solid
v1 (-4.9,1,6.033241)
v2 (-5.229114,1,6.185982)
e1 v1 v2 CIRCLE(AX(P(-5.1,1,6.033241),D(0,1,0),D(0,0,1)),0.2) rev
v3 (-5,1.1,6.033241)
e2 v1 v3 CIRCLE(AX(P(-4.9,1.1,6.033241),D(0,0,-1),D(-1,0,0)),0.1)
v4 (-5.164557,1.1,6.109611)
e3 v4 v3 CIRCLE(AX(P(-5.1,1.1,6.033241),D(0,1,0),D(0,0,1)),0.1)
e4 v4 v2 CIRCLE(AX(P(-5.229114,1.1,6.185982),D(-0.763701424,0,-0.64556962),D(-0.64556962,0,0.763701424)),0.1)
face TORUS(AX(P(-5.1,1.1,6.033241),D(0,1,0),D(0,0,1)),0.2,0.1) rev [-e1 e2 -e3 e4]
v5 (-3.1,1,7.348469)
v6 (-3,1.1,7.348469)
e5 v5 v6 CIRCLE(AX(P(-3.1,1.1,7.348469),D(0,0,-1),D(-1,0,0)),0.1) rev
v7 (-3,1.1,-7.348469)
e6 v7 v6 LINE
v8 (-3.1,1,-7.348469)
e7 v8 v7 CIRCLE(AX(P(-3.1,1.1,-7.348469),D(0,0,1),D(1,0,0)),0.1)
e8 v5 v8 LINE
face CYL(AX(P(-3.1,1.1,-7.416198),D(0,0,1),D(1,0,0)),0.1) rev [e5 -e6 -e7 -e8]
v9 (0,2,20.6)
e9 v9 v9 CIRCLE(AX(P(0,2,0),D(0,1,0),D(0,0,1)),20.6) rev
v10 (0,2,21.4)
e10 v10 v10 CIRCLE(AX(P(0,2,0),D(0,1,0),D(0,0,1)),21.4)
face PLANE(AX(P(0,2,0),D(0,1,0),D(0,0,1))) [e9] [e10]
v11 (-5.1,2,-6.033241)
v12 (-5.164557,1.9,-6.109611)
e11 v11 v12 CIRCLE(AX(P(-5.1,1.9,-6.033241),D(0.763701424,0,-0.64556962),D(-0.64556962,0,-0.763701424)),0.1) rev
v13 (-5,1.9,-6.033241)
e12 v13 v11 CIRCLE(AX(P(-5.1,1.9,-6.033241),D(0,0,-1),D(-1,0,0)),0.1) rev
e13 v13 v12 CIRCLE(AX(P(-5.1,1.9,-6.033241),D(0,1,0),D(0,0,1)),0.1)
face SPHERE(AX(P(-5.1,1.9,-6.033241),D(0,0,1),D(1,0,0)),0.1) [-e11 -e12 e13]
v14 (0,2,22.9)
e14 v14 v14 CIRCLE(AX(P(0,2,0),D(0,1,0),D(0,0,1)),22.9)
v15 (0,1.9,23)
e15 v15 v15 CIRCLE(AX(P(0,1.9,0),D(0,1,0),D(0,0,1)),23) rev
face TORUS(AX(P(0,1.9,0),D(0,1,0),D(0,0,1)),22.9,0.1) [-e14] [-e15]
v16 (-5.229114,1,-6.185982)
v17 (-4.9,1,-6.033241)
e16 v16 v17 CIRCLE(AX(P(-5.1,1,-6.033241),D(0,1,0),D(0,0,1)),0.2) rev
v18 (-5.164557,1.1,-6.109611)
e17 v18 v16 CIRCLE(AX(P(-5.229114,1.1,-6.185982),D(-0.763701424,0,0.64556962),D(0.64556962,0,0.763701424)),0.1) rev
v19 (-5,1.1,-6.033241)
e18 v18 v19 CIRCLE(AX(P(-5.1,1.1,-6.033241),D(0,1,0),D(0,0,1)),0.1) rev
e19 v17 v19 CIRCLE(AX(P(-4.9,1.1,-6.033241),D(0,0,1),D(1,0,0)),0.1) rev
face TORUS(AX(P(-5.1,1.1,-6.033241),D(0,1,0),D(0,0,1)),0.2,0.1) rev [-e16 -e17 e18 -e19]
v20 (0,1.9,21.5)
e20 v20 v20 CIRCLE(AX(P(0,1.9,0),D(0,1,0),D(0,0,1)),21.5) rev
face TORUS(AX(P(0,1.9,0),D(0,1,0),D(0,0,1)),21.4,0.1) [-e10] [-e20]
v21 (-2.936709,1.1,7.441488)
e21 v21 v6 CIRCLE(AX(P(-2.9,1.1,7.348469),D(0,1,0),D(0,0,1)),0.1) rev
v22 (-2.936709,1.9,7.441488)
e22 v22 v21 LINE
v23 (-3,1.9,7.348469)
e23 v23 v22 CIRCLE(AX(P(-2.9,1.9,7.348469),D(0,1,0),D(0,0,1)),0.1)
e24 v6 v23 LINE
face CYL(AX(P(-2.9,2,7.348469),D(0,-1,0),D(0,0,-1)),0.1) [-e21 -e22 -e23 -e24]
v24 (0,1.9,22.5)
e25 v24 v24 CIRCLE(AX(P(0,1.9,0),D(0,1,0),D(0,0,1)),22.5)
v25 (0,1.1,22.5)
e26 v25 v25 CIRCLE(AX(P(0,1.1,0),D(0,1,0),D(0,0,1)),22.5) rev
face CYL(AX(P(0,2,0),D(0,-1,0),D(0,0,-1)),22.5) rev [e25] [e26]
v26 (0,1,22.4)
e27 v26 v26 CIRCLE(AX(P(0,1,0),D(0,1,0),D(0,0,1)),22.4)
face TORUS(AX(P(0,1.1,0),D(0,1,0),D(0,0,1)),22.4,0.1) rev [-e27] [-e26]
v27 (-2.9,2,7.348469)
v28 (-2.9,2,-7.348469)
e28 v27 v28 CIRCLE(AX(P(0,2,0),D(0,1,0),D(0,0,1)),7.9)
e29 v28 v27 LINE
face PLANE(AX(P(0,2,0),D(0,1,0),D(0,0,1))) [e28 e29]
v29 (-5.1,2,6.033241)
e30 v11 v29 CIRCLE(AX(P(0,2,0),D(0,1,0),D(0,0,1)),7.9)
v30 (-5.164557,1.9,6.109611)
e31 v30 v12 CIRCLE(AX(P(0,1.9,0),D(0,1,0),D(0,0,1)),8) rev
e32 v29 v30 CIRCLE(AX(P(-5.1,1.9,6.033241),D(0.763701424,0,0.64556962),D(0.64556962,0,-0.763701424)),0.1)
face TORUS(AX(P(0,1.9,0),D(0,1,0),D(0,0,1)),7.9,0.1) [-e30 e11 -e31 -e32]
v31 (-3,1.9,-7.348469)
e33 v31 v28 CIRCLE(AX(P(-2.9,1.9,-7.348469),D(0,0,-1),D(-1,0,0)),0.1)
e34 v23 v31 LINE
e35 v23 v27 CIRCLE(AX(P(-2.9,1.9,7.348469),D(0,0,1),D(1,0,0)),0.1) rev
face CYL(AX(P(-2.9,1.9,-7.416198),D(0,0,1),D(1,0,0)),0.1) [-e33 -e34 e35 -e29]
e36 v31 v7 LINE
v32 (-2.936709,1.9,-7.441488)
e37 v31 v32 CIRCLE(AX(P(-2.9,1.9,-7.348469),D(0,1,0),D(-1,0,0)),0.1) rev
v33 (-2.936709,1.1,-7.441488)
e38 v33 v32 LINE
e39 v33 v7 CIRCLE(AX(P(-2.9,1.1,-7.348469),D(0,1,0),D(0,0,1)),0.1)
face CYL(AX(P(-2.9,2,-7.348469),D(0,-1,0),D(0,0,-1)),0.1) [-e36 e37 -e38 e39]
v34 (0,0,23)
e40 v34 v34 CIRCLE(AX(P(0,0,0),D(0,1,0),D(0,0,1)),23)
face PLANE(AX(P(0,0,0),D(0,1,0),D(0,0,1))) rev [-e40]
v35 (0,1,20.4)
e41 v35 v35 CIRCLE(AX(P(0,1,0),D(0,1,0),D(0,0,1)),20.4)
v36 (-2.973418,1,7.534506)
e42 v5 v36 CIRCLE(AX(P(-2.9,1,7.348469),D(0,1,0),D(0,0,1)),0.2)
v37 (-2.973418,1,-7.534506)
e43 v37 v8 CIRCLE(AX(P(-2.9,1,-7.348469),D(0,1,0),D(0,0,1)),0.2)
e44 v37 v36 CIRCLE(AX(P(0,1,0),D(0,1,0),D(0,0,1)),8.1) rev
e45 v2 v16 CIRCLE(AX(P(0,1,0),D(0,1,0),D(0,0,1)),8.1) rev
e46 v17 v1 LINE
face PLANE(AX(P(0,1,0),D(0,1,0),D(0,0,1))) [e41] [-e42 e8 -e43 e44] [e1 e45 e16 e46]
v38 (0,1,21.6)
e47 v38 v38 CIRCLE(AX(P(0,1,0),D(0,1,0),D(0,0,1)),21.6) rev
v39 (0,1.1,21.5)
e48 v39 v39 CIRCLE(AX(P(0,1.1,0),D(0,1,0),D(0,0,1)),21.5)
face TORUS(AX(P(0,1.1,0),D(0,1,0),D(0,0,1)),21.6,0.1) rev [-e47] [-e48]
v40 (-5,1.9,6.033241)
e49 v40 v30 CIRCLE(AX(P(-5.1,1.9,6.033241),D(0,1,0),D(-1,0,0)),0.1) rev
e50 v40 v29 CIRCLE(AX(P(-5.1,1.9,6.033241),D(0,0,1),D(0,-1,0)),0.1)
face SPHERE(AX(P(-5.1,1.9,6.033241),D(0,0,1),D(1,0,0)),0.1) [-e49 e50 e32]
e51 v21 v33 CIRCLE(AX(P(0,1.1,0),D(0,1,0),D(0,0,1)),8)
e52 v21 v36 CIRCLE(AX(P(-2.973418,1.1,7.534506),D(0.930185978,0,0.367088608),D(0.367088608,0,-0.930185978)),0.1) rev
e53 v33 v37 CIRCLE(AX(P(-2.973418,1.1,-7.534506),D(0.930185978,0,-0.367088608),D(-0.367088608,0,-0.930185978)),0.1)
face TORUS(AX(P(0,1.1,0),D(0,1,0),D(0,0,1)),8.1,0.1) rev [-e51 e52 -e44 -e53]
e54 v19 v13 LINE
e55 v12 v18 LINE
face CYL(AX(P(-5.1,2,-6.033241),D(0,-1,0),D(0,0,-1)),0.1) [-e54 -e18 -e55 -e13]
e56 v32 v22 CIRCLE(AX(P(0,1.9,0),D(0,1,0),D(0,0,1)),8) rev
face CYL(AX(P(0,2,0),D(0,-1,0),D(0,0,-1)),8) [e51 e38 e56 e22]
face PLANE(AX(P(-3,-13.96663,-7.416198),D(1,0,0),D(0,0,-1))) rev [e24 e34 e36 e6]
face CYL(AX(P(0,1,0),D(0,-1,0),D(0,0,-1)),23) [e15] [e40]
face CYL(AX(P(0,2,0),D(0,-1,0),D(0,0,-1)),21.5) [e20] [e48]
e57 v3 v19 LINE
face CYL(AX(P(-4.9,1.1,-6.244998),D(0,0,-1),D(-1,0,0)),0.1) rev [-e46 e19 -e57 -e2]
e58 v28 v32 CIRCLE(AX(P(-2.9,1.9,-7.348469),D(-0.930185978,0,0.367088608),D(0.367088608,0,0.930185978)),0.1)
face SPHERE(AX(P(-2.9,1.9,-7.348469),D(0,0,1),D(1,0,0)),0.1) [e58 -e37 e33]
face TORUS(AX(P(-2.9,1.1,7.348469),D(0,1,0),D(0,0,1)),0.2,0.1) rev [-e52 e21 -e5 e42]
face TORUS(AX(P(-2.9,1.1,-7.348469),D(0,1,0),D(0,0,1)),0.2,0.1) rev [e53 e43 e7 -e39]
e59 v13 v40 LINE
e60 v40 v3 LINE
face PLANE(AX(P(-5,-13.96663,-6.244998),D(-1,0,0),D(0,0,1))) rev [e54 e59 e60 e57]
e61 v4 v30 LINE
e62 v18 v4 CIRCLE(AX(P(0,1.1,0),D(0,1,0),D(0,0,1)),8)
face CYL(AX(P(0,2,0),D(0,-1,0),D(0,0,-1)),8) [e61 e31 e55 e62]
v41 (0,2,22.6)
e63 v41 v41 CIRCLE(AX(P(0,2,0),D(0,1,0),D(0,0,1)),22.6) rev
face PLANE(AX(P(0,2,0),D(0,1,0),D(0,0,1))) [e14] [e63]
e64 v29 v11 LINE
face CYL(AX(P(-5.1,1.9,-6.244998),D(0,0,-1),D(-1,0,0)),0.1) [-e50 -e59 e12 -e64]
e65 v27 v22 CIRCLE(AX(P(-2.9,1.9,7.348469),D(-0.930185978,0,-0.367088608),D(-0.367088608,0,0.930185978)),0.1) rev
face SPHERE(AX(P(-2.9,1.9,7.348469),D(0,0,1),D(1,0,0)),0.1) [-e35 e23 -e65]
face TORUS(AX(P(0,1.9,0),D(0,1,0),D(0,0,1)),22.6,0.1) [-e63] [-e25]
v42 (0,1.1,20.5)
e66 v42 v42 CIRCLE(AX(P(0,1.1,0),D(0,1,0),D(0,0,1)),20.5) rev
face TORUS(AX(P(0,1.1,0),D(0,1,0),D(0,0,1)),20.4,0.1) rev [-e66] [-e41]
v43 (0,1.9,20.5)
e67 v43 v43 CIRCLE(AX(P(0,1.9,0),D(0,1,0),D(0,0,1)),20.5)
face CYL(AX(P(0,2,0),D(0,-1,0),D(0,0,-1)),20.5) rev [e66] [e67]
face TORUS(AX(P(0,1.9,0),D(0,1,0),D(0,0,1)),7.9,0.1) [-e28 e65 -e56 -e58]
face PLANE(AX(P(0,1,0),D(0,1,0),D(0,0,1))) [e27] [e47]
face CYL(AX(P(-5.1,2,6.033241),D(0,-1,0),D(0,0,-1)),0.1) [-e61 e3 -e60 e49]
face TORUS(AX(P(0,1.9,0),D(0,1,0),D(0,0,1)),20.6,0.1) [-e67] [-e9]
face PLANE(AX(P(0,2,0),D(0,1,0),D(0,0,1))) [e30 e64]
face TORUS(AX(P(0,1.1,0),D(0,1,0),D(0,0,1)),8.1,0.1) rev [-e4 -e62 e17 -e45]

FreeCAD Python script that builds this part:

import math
import FreeCAD as App
import Part
import Sketcher

V = App.Vector


def edges_at(feature, points):
    """Names of the edges that pass closest to the given points."""
    edges = feature.Shape.Edges
    near = lambda p: min(range(len(edges)), key=lambda i: edges[i].distToShape(Part.Vertex(*p))[0])
    return sorted({f"Edge{near(p) + 1}" for p in points})

doc = App.newDocument("Part")
body = doc.addObject("PartDesign::Body", "Body")

# Sketch on XZ plane
sketch1 = body.newObject("Sketcher::SketchObject", "Sketch")
sketch1.AttachmentSupport = (doc.getObject("XZ_Plane"), [""])
sketch1.MapMode = "FlatFace"
sketch1.addGeometry(Part.Circle(V(0, 0, 0), V(0, 0, 1), 23), False)
sketch1.addConstraint([
    Sketcher.Constraint("Coincident", 0, 3, -1, 1),
    Sketcher.Constraint("Diameter", 0, 46.0),
])
pad1 = body.newObject("PartDesign::Pad", "Pad")
pad1.Profile = sketch1
pad1.Length = 1
pad1.Reversed = True

# Sketch on XZ plane
sketch2 = body.newObject("Sketcher::SketchObject", "Sketch001")
sketch2.AttachmentSupport = (doc.getObject("XZ_Plane"), [""])
sketch2.MapMode = "FlatFace"
sketch2.AttachmentOffset = App.Placement(V(0, 0, -1), App.Rotation())
sketch2.addGeometry([
    Part.Circle(V(0, 0, 0), V(0, 0, 1), 23),
    Part.Circle(V(0, 0, 0), V(0, 0, 1), 22),
], False)
sketch2.addConstraint([
    Sketcher.Constraint("Coincident", 0, 3, -1, 1),
    Sketcher.Constraint("Coincident", 1, 3, -1, 1),
    Sketcher.Constraint("Diameter", 0, 46.0),
    Sketcher.Constraint("Diameter", 1, 45.0),
])
pad2 = body.newObject("PartDesign::Pad", "Pad001")
pad2.Profile = sketch2
pad2.Length = 1
pad2.Reversed = True

# Sketch on XZ plane
sketch3 = body.newObject("Sketcher::SketchObject", "Sketch002")
sketch3.AttachmentSupport = (doc.getObject("XZ_Plane"), [""])
sketch3.MapMode = "FlatFace"
sketch3.AttachmentOffset = App.Placement(V(0, 0, -1), App.Rotation())
sketch3.addGeometry([
    Part.Circle(V(0, 0, 0), V(0, 0, 1), 22),
    Part.Circle(V(0, 0, 0), V(0, 0, 1), 20),
    Part.Circle(V(0, 0, 0), V(0, 0, 1), 8),
], False)
sketch3.addConstraint([
    Sketcher.Constraint("Coincident", 0, 3, -1, 1),
    Sketcher.Constraint("Coincident", 1, 3, -1, 1),
    Sketcher.Constraint("Coincident", 2, 3, -1, 1),
    Sketcher.Constraint("Diameter", 0, 43.0),
    Sketcher.Constraint("Diameter", 1, 41.0),
    Sketcher.Constraint("Diameter", 2, 16.0),
])
pad3 = body.newObject("PartDesign::Pad", "Pad002")
pad3.Profile = sketch3
pad3.Length = 1
pad3.Reversed = True

# Sketch on XZ plane
sketch4 = body.newObject("Sketcher::SketchObject", "Sketch003")
sketch4.AttachmentSupport = (doc.getObject("XZ_Plane"), [""])
sketch4.MapMode = "FlatFace"
sketch4.AttachmentOffset = App.Placement(V(0, 0, -1), App.Rotation())
sketch4.addGeometry([
    Part.LineSegment(V(-5, -6.2, 0), V(-5, 6.2, 0)),
    Part.ArcOfCircle(Part.Circle(V(0, 0, 0), V(0, 0, 1), 8), math.radians(112.02), math.radians(128.68)),
    Part.LineSegment(V(-3, 7.4, 0), V(-3, -7.4, 0)),
    Part.ArcOfCircle(Part.Circle(V(0, 0, 0), V(0, 0, 1), 8), math.radians(-128.68), math.radians(-112.02)),
], False)
sketch4.addConstraint([
    Sketcher.Constraint("Coincident", 0, 2, 1, 2),
    Sketcher.Constraint("Coincident", 1, 1, 2, 1),
    Sketcher.Constraint("Coincident", 2, 2, 3, 2),
    Sketcher.Constraint("Coincident", 3, 1, 0, 1),
    Sketcher.Constraint("Vertical", 0),
    Sketcher.Constraint("Vertical", 2),
    Sketcher.Constraint("Coincident", 1, 3, -1, 1),
    Sketcher.Constraint("Coincident", 3, 3, -1, 1),
    Sketcher.Constraint("Equal", 1, 3),
    Sketcher.Constraint("Radius", 1, 8.0),
    Sketcher.Constraint("DistanceX", 0, 2, -1, 1, 5.0),
    Sketcher.Constraint("DistanceX", 1, 1, -1, 1, 3.0),
])
pocket1 = body.newObject("PartDesign::Pocket", "Pocket")
pocket1.Profile = sketch4
pocket1.Length = 1
doc.recompute()

fillet = body.newObject("PartDesign::Fillet", "Fillet")
fillet.Base = (pocket1, edges_at(pocket1, [
    (0, 1, -20.5),
    (0, 2, -20.5),
    (0, 1, -21.5),
    (0, 2, -21.5),
    (-8, 1, 0),
    (8, 1, 0),
    (-8, 2, 0),
    (8, 2, 0),
    (-5, 1.5, -6.245),
    (-3, 1.5, -7.416),
    (-3, 1.5, 7.416),
    (-5, 1.5, 6.245),
    (-5, 2, 0),
    (-3, 2, 0),
    (-3, 1, 0),
    (-5, 1, 0),
    (0, 1, -22.5),
    (0, 2, -23),
    (0, 2, -22.5),
]))
fillet.Radius = 0.1

doc.recompute()
